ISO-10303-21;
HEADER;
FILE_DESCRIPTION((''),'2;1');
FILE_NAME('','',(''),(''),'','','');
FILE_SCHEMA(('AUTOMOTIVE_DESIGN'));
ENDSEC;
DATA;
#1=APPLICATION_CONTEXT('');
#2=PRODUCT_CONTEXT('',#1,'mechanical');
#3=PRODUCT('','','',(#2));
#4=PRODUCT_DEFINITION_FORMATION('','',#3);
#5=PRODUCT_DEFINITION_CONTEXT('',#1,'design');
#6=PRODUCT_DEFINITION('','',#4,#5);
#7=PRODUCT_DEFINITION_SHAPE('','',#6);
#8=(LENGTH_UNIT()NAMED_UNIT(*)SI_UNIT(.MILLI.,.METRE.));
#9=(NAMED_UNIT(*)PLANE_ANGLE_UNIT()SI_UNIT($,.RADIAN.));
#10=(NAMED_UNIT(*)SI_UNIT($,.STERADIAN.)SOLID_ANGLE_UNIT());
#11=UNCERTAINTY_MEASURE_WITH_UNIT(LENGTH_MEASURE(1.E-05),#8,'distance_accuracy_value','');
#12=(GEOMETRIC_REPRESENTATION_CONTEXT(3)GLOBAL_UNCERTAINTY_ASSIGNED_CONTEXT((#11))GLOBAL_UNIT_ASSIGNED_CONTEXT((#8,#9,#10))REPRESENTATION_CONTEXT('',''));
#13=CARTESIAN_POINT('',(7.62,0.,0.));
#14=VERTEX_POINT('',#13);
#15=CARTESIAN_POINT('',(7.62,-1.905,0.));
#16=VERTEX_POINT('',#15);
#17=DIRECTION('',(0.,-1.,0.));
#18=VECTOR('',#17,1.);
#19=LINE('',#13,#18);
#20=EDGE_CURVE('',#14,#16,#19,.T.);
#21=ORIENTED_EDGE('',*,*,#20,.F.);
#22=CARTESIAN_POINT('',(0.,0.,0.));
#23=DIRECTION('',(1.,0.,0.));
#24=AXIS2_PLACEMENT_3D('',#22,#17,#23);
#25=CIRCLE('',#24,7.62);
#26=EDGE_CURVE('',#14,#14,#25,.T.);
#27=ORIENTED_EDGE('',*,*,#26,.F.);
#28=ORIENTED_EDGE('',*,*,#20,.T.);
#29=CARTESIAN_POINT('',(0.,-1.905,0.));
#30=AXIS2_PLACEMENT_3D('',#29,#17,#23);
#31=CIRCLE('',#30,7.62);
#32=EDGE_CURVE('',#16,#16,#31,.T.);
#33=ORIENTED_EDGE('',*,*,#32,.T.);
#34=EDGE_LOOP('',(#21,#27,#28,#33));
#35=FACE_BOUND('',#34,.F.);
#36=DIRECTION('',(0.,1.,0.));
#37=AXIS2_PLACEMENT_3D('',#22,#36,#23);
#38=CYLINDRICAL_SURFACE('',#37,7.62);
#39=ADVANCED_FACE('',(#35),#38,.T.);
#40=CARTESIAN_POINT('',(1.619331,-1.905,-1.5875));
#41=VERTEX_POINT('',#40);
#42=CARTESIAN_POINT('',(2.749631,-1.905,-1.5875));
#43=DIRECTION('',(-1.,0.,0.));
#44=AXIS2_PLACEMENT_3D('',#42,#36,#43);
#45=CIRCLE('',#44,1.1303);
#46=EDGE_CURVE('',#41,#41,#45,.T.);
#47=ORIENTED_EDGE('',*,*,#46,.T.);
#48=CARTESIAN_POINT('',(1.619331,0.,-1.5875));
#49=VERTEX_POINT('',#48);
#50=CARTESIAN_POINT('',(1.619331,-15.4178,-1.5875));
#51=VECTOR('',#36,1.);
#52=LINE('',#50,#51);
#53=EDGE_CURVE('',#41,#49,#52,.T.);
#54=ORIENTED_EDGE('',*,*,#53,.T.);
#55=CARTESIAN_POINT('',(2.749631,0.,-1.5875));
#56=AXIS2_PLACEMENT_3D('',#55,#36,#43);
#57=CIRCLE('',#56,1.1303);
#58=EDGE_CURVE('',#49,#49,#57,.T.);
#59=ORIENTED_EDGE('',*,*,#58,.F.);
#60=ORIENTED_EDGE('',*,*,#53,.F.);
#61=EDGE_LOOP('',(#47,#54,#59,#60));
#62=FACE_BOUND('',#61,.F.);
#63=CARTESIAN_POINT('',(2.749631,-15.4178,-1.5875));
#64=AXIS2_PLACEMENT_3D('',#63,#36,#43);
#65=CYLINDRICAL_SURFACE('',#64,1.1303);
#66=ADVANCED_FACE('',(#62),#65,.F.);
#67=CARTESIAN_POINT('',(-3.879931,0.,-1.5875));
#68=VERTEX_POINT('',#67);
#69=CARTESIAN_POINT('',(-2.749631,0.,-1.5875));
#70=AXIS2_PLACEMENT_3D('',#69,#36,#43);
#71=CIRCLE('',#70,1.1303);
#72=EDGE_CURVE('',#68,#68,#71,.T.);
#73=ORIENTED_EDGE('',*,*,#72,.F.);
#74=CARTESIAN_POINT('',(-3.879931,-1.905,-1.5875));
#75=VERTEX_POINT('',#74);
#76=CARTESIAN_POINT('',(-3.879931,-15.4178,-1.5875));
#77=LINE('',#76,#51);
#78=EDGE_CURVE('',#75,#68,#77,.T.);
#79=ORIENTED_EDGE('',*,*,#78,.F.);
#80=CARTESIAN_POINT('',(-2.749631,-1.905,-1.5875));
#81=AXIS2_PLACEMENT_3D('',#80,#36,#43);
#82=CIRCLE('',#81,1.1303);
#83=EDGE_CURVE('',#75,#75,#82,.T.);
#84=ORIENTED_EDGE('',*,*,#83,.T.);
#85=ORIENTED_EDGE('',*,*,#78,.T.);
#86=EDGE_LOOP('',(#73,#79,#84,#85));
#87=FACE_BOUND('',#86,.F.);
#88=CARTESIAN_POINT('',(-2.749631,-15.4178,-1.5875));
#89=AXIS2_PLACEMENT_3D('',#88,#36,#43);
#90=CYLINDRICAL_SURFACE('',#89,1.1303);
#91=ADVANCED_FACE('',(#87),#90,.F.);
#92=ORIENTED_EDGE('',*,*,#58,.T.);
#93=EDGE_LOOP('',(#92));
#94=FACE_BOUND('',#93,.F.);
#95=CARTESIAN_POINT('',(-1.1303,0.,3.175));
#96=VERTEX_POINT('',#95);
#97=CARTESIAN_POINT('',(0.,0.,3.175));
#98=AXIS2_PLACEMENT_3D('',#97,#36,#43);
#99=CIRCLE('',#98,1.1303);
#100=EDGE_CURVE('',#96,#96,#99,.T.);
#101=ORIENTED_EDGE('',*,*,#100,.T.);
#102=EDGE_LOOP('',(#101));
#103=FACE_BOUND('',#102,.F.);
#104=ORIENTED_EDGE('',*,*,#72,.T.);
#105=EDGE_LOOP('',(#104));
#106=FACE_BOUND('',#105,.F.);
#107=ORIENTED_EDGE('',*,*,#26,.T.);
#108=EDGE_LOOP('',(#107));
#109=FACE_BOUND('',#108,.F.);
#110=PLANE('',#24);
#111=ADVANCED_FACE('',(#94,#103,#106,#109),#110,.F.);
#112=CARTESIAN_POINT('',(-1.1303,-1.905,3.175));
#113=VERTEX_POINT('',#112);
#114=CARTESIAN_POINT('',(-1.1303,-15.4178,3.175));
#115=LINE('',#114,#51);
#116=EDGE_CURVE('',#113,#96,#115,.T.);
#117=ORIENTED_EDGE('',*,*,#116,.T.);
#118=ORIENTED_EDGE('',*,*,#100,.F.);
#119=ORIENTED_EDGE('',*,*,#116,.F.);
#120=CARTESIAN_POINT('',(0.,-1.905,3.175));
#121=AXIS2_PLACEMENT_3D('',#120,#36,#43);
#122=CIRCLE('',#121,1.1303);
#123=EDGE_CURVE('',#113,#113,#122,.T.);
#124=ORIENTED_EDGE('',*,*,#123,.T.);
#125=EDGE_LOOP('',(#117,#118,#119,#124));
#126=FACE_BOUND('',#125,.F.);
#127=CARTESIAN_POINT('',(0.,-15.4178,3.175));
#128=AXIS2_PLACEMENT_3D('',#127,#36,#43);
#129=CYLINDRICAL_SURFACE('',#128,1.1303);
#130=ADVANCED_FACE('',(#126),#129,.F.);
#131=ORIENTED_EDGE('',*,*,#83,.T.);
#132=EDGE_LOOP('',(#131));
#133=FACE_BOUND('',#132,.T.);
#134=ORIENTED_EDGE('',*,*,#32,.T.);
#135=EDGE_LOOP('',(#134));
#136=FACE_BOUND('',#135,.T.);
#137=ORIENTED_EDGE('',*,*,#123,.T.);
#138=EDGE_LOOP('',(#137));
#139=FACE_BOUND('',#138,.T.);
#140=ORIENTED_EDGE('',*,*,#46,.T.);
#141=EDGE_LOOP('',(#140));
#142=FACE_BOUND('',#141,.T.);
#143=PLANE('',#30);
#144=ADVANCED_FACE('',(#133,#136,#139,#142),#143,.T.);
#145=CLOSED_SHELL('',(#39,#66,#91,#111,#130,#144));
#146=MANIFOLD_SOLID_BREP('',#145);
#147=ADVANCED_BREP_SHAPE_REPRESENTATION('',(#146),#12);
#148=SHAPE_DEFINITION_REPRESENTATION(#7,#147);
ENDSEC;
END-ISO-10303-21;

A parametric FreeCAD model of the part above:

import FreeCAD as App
import Part
import Sketcher
Q = App.Units.Quantity

doc = App.newDocument("Part")
params = doc.addObject("Spreadsheet::Sheet", "Params")
for row, (alias, value) in enumerate([
    ("sketch1_diameter", "0.6 in"),
    ("pad1_length", "0.075 in"),
    ("sketch2_diameter", "0.089 in"),
    ("hole_diameter", "0.089 in"),
    ("hole_depth", "0.532 in"),
], start=1):
    params.set(f"A{row}", alias)
    params.set(f"B{row}", "=" + value)
    params.setAlias(f"B{row}", alias)

body = doc.addObject("PartDesign::Body", "Body")

# Sketch on XZ plane
sketch1 = body.newObject("Sketcher::SketchObject", "Sketch")
sketch1.AttachmentSupport = (doc.getObject("XZ_Plane"), [""])
sketch1.MapMode = "FlatFace"
sketch1.addGeometry(Part.Circle(App.Vector(0, 0, 0), App.Vector(0, 0, 1), 8), False)
sketch1.addConstraint([
    Sketcher.Constraint("Coincident", 0, 3, -1, 1),
    Sketcher.Constraint("Diameter", 0, Q("0.6 in")),
])
sketch1.setExpression("Constraints[1]", "Params.sketch1_diameter")
pad1 = body.newObject("PartDesign::Pad", "Pad")
pad1.Profile = sketch1
pad1.setExpression("Length", "Params.pad1_length")

# Sketch on XZ plane
sketch2 = body.newObject("Sketcher::SketchObject", "Sketch001")
sketch2.AttachmentSupport = (doc.getObject("XZ_Plane"), [""])
sketch2.MapMode = "FlatFace"
sketch2.AttachmentOffset = App.Placement(App.Vector(0, 0, 0.075 * 25.4), App.Rotation())
sketch2.addGeometry([
    Part.Circle(App.Vector(0, 3.2, 0), App.Vector(0, 0, 1), 1.1),
    Part.Circle(App.Vector(2.7, -1.6, 0), App.Vector(0, 0, 1), 1.1),
    Part.Circle(App.Vector(-2.7, -1.6, 0), App.Vector(0, 0, 1), 1.1),
], False)
sketch2.addConstraint([
    Sketcher.Constraint("Equal", 0, 1),
    Sketcher.Constraint("Equal", 1, 2),
    Sketcher.Constraint("Symmetric", 1, 3, 2, 3, -2),
    Sketcher.Constraint("PointOnObject", 0, 3, -2),
    Sketcher.Constraint("Diameter", 0, Q("0.089 in")),
    Sketcher.Constraint("DistanceY", -1, 1, 0, 3, Q("0.125 in")),
    Sketcher.Constraint("DistanceY", 1, 3, -1, 1, Q("0.0625 in")),
    Sketcher.Constraint("DistanceX", -1, 1, 1, 3, Q("2.749631 mm")),
])
sketch2.setExpression("Constraints[4]", "Params.sketch2_diameter")
doc.recompute()
hole = body.newObject("PartDesign::Hole", "Hole")
hole.Profile = sketch2
hole.ThreadType = "None"
hole.setExpression("Diameter", "Params.hole_diameter")
hole.DepthType = "Dimension"
hole.setExpression("Depth", "Params.hole_depth")
hole.DrillPoint = "Angled"
hole.DrillPointAngle = 118

doc.recompute()
